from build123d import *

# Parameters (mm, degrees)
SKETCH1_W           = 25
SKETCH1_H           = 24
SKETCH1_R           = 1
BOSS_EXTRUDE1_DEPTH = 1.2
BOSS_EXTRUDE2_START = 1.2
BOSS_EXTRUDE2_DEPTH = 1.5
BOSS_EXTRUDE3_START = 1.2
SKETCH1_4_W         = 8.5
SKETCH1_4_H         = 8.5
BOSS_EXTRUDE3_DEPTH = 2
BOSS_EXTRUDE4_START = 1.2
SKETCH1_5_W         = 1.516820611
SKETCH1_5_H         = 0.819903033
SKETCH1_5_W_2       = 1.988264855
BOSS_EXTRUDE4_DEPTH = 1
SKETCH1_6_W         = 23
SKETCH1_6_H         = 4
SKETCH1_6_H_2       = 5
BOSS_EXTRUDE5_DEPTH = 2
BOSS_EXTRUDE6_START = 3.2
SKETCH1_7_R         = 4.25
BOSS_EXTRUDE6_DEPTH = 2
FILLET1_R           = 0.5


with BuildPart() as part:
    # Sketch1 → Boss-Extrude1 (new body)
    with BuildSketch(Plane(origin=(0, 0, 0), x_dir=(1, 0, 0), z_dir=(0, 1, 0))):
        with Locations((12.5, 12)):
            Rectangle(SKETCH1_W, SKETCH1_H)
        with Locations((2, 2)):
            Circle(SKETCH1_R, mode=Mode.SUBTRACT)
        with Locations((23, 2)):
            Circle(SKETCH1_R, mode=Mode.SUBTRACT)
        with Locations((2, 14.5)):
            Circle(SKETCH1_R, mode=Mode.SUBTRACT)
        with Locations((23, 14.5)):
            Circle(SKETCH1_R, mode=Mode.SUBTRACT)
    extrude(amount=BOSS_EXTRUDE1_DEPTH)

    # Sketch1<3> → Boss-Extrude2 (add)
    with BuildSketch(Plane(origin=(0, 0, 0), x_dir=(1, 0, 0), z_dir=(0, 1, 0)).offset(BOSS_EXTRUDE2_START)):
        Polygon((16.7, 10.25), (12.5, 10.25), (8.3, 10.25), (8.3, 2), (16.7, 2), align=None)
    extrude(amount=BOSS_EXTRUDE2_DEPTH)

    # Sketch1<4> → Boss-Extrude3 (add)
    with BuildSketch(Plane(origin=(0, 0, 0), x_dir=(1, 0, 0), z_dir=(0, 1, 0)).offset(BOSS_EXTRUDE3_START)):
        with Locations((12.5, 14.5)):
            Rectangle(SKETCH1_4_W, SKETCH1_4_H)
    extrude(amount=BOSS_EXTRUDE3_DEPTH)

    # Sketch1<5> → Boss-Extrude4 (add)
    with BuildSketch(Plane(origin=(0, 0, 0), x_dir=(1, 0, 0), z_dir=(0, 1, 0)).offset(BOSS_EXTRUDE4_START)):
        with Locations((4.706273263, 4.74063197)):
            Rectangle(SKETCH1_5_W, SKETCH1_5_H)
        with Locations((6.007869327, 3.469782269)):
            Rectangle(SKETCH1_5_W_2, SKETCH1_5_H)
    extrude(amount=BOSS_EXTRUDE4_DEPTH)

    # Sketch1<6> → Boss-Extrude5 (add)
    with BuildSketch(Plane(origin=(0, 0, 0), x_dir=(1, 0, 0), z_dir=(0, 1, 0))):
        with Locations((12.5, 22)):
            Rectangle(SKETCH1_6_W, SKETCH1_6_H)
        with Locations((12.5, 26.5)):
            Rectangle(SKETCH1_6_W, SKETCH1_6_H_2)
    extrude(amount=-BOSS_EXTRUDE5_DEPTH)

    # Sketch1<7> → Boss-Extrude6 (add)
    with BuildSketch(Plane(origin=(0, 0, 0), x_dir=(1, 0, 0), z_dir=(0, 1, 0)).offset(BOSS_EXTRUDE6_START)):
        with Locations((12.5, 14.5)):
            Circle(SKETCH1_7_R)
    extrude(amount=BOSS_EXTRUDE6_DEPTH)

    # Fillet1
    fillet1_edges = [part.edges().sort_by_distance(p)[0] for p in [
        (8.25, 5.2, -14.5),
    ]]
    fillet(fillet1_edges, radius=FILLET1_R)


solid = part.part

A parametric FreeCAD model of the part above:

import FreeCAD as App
import Part
import Sketcher

V = App.Vector
Q = App.Units.Quantity


def edges_at(feature, points):
    """Names of the edges that pass closest to the given points."""
    edges = feature.Shape.Edges
    near = lambda p: min(range(len(edges)), key=lambda i: edges[i].distToShape(Part.Vertex(*p))[0])
    return sorted({f"Edge{near(p) + 1}" for p in points})


def add_polygon(sketch, points):
    """Adds a closed chain of lines whose ends are joined by coincident constraints."""
    first, n = sketch.GeometryCount, len(points)
    for a, b in zip(points, points[1:] + points[:1]):
        sketch.addGeometry(Part.LineSegment(App.Vector(*a, 0), App.Vector(*b, 0)), False)
    for i in range(n):
        sketch.addConstraint(Sketcher.Constraint("Coincident", first + i, 2, first + (i + 1) % n, 1))

doc = App.newDocument("Part")
body = doc.addObject("PartDesign::Body", "Body")

# Sketch on XZ plane
sketch1 = doc.addObject("Sketcher::SketchObject", "Sketch")
body.addObject(sketch1)
sketch1.AttachmentSupport = (doc.XZ_Plane, [""])
sketch1.MapMode = "FlatFace"
add_polygon(sketch1, [(0, -24), (0, 0), (25, 0), (25, -24)])  # lines 0-3
sketch1.addGeometry(Part.Circle(V(2, -2, 0), V(0, 0, 1), 1), False)  # 4
sketch1.addGeometry(Part.Circle(V(23, -2, 0), V(0, 0, 1), 1), False)  # 5
sketch1.addGeometry(Part.Circle(V(2, -14.5, 0), V(0, 0, 1), 1), False)  # 6
sketch1.addGeometry(Part.Circle(V(23, -14.5, 0), V(0, 0, 1), 1), False)  # 7
sketch1.addConstraint([
    Sketcher.Constraint("Vertical", 0),
    Sketcher.Constraint("Horizontal", 1),
    Sketcher.Constraint("Vertical", 2),
    Sketcher.Constraint("Horizontal", 3),
    Sketcher.Constraint("Coincident", 0, 2, -1, 1),
    Sketcher.Constraint("Equal", 4, 5),
    Sketcher.Constraint("Equal", 5, 6),
    Sketcher.Constraint("Equal", 6, 7),
    Sketcher.Constraint("Horizontal", 4, 3, 5, 3),
    Sketcher.Constraint("Horizontal", 6, 3, 7, 3),
    Sketcher.Constraint("Vertical", 4, 3, 6, 3),
    Sketcher.Constraint("Vertical", 5, 3, 7, 3),
    Sketcher.Constraint("Diameter", 4, Q("2 mm")),
    Sketcher.Constraint("DistanceX", 1, 1, 1, 2, Q("25 mm")),
    Sketcher.Constraint("DistanceY", 0, 1, 0, 2, Q("24 mm")),
    Sketcher.Constraint("DistanceX", -1, 1, 4, 3, Q("2 mm")),
    Sketcher.Constraint("DistanceY", 4, 3, -1, 1, Q("2 mm")),
    Sketcher.Constraint("DistanceX", -1, 1, 5, 3, Q("23 mm")),
    Sketcher.Constraint("DistanceY", 6, 3, -1, 1, Q("14.5 mm")),
])
pad1 = doc.addObject("PartDesign::Pad", "Pad")
body.addObject(pad1)
pad1.Profile = sketch1
pad1.Length = 1.2
pad1.Reversed = True

# Sketch on XZ plane
sketch2 = doc.addObject("Sketcher::SketchObject", "Sketch001")
body.addObject(sketch2)
sketch2.AttachmentSupport = (doc.XZ_Plane, [""])
sketch2.MapMode = "FlatFace"
sketch2.AttachmentOffset = App.Placement(V(0, 0, -1.2), App.Rotation())
add_polygon(sketch2, [(16.7, -10.25), (8.3, -10.25), (8.3, -2), (16.7, -2)])  # lines 0-3
sketch2.addConstraint([
    Sketcher.Constraint("Horizontal", 0),
    Sketcher.Constraint("Vertical", 1),
    Sketcher.Constraint("Horizontal", 2),
    Sketcher.Constraint("Vertical", 3),
    Sketcher.Constraint("DistanceX", 0, 2, 0, 1, Q("8.4 mm")),
    Sketcher.Constraint("DistanceY", 1, 2, -1, 1, Q("2 mm")),
    Sketcher.Constraint("DistanceY", 1, 1, 1, 2, Q("8.25 mm")),
    Sketcher.Constraint("DistanceX", -1, 1, 0, 2, Q("8.3 mm")),
])
pad2 = doc.addObject("PartDesign::Pad", "Pad001")
body.addObject(pad2)
pad2.Profile = sketch2
pad2.Length = 1.5
pad2.Reversed = True

# Sketch on XZ plane
sketch3 = doc.addObject("Sketcher::SketchObject", "Sketch002")
body.addObject(sketch3)
sketch3.AttachmentSupport = (doc.XZ_Plane, [""])
sketch3.MapMode = "FlatFace"
sketch3.AttachmentOffset = App.Placement(V(0, 0, -1.2), App.Rotation())
add_polygon(sketch3, [(8.25, -18.75), (8.25, -10.25), (16.75, -10.25), (16.75, -18.75)])  # lines 0-3
sketch3.addConstraint([
    Sketcher.Constraint("Vertical", 0),
    Sketcher.Constraint("Horizontal", 1),
    Sketcher.Constraint("Vertical", 2),
    Sketcher.Constraint("Horizontal", 3),
    Sketcher.Constraint("Equal", 3, 0),
    Sketcher.Constraint("DistanceX", 1, 1, 1, 2, Q("8.5 mm")),
    Sketcher.Constraint("DistanceX", -1, 1, 0, 2, Q("8.25 mm")),
    Sketcher.Constraint("DistanceY", 0, 2, -1, 1, Q("10.25 mm")),
])
pad3 = doc.addObject("PartDesign::Pad", "Pad002")
body.addObject(pad3)
pad3.Profile = sketch3
pad3.Length = 2
pad3.Reversed = True

# Sketch on XZ plane
sketch4 = doc.addObject("Sketcher::SketchObject", "Sketch003")
body.addObject(sketch4)
sketch4.AttachmentSupport = (doc.XZ_Plane, [""])
sketch4.MapMode = "FlatFace"
sketch4.AttachmentOffset = App.Placement(V(0, 0, -1.2), App.Rotation())
add_polygon(sketch4, [(3.947863, -5.150583), (3.947863, -4.33068), (5.464684, -4.33068), (5.464684, -5.150583)])  # lines 0-3
add_polygon(sketch4, [(5.013737, -3.879734), (5.013737, -3.059831), (7.002002, -3.059831), (7.002002, -3.879734)])  # lines 4-7
sketch4.addConstraint([
    Sketcher.Constraint("Vertical", 0),
    Sketcher.Constraint("Horizontal", 1),
    Sketcher.Constraint("Vertical", 2),
    Sketcher.Constraint("Horizontal", 3),
    Sketcher.Constraint("Vertical", 4),
    Sketcher.Constraint("Horizontal", 5),
    Sketcher.Constraint("Vertical", 6),
    Sketcher.Constraint("Horizontal", 7),
    Sketcher.Constraint("Equal", 2, 4),
    Sketcher.Constraint("DistanceX", -1, 1, 5, 2, Q("7.002002 mm")),
    Sketcher.Constraint("DistanceX", 1, 1, 1, 2, Q("1.516821 mm")),
    Sketcher.Constraint("DistanceX", 5, 1, 5, 2, Q("1.988265 mm")),
    Sketcher.Constraint("DistanceY", 0, 1, 0, 2, Q("0.819903 mm")),
    Sketcher.Constraint("DistanceY", 0, 2, -1, 1, Q("4.33068 mm")),
    Sketcher.Constraint("DistanceY", 4, 2, -1, 1, Q("3.059831 mm")),
    Sketcher.Constraint("DistanceX", 1, 2, 5, 2, Q("1.537318 mm")),
])
pad4 = doc.addObject("PartDesign::Pad", "Pad003")
body.addObject(pad4)
pad4.Profile = sketch4
pad4.Length = 1
pad4.Reversed = True

# Sketch on XZ plane
sketch5 = doc.addObject("Sketcher::SketchObject", "Sketch004")
body.addObject(sketch5)
sketch5.AttachmentSupport = (doc.XZ_Plane, [""])
sketch5.MapMode = "FlatFace"
add_polygon(sketch5, [(1, -20), (24, -20), (24, -29), (1, -29)])  # lines 0-3
sketch5.addConstraint([
    Sketcher.Constraint("Horizontal", 0),
    Sketcher.Constraint("Vertical", 1),
    Sketcher.Constraint("Horizontal", 2),
    Sketcher.Constraint("Vertical", 3),
    Sketcher.Constraint("DistanceX", 0, 1, 0, 2, Q("23 mm")),
    Sketcher.Constraint("DistanceY", 1, 2, 1, 1, Q("9 mm")),
    Sketcher.Constraint("DistanceX", -1, 1, 0, 2, Q("24 mm")),
    Sketcher.Constraint("DistanceY", 0, 2, -1, 1, Q("20 mm")),
])
pad5 = doc.addObject("PartDesign::Pad", "Pad004")
body.addObject(pad5)
pad5.Profile = sketch5
pad5.Length = 2

# Sketch on XZ plane
sketch6 = doc.addObject("Sketcher::SketchObject", "Sketch005")
body.addObject(sketch6)
sketch6.AttachmentSupport = (doc.XZ_Plane, [""])
sketch6.MapMode = "FlatFace"
sketch6.AttachmentOffset = App.Placement(V(0, 0, -3.2), App.Rotation())
sketch6.addGeometry(Part.Circle(V(12.5, -14.5, 0), V(0, 0, 1), 4.25), False)
sketch6.addConstraint([
    Sketcher.Constraint("Diameter", 0, Q("8.5 mm")),
    Sketcher.Constraint("DistanceX", -1, 1, 0, 3, Q("12.5 mm")),
    Sketcher.Constraint("DistanceY", 0, 3, -1, 1, Q("14.5 mm")),
])
pad6 = doc.addObject("PartDesign::Pad", "Pad005")
body.addObject(pad6)
pad6.Profile = sketch6
pad6.Length = 2
pad6.Reversed = True
doc.recompute()

fillet = doc.addObject("PartDesign::Fillet", "Fillet")
body.addObject(fillet)
fillet.Base = (pad6, edges_at(pad6, [(8.25, 5.2, -14.5)]))
fillet.Radius = 0.5

doc.recompute()
